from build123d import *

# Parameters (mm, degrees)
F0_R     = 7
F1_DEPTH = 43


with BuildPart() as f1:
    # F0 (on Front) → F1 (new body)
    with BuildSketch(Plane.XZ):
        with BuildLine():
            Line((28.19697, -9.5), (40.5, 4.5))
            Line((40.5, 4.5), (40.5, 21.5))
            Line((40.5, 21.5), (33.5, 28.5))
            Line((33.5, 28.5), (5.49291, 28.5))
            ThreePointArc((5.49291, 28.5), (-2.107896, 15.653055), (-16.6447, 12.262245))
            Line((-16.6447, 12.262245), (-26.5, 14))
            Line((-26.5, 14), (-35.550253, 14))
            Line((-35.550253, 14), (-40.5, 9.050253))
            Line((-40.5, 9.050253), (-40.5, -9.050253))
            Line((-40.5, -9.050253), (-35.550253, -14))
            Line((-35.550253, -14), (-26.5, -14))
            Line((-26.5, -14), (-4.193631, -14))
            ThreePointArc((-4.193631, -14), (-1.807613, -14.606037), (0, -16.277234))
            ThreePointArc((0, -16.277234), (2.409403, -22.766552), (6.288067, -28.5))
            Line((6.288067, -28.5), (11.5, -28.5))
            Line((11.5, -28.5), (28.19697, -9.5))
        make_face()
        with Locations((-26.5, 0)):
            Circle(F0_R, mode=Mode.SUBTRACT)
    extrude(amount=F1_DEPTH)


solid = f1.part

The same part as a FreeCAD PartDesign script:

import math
import FreeCAD as App
import Part
import Sketcher

V = App.Vector

doc = App.newDocument("Part")
body = doc.addObject("PartDesign::Body", "Body")

# Sketch on XZ plane
sketch1 = body.newObject("Sketcher::SketchObject", "Sketch")
sketch1.AttachmentSupport = (doc.getObject("XZ_Plane"), [""])
sketch1.MapMode = "FlatFace"
sketch1.addGeometry(Part.LineSegment(V(28.19697, -9.5, 0), V(40.5, 4.5, 0)), False)
sketch1.addGeometry(Part.LineSegment(V(40.5, 4.5, 0), V(40.5, 21.5, 0)), False)
sketch1.addGeometry(Part.LineSegment(V(40.5, 21.5, 0), V(33.5, 28.5, 0)), False)
sketch1.addGeometry(Part.LineSegment(V(33.5, 28.5, 0), V(5.49291, 28.5, 0)), False)
sketch1.addGeometry(Part.ArcOfCircle(Part.Circle(V(-13.345384, 30.973591, 0), V(0, 0, 1), 18.999999), math.radians(-100.000002), math.radians(-7.480516)), False)
sketch1.addGeometry(Part.LineSegment(V(-16.6447, 12.262245, 0), V(-26.5, 14, 0)), False)
sketch1.addGeometry(Part.LineSegment(V(-26.5, 14, 0), V(-35.550253, 14, 0)), False)
sketch1.addGeometry(Part.LineSegment(V(-35.550253, 14, 0), V(-40.5, 9.050253, 0)), False)
sketch1.addGeometry(Part.LineSegment(V(-40.5, 9.050253, 0), V(-40.5, -9.050253, 0)), False)
sketch1.addGeometry(Part.LineSegment(V(-40.5, -9.050253, 0), V(-35.550253, -14, 0)), False)
sketch1.addGeometry(Part.LineSegment(V(-35.550253, -14, 0), V(-4.193631, -14, 0)), False)
sketch1.addGeometry(Part.ArcOfCircle(Part.Circle(V(-4.193633, -19.000003, 0), V(0, 0, 1), 5.000003), math.radians(32.994158), math.radians(89.999972)), False)
sketch1.addGeometry(Part.ArcOfCircle(Part.Circle(V(28.196976, -9.499998, 0), V(0, 0, 1), 29.000007), math.radians(-166.485128), math.radians(-139.06728)), False)
sketch1.addGeometry(Part.LineSegment(V(6.288067, -28.5, 0), V(11.5, -28.5, 0)), False)
sketch1.addGeometry(Part.LineSegment(V(11.5, -28.5, 0), V(28.19697, -9.5, 0)), False)
sketch1.addGeometry(Part.Circle(V(-26.5, 0, 0), V(0, 0, 1), 7), False)
sketch1.addConstraint(Sketcher.Constraint("Coincident", 0, 2, 1, 1))
sketch1.addConstraint(Sketcher.Constraint("Coincident", 1, 2, 2, 1))
sketch1.addConstraint(Sketcher.Constraint("Coincident", 2, 2, 3, 1))
sketch1.addConstraint(Sketcher.Constraint("Coincident", 3, 2, 4, 2))
sketch1.addConstraint(Sketcher.Constraint("Coincident", 4, 1, 5, 1))
sketch1.addConstraint(Sketcher.Constraint("Coincident", 5, 2, 6, 1))
sketch1.addConstraint(Sketcher.Constraint("Coincident", 6, 2, 7, 1))
sketch1.addConstraint(Sketcher.Constraint("Coincident", 7, 2, 8, 1))
sketch1.addConstraint(Sketcher.Constraint("Coincident", 8, 2, 9, 1))
sketch1.addConstraint(Sketcher.Constraint("Coincident", 9, 2, 10, 1))
sketch1.addConstraint(Sketcher.Constraint("Coincident", 10, 2, 11, 2))
sketch1.addConstraint(Sketcher.Constraint("Coincident", 11, 1, 12, 1))
sketch1.addConstraint(Sketcher.Constraint("Coincident", 12, 2, 13, 1))
sketch1.addConstraint(Sketcher.Constraint("Coincident", 13, 2, 14, 1))
sketch1.addConstraint(Sketcher.Constraint("Coincident", 14, 2, 0, 1))
sketch1.addConstraint(Sketcher.Constraint("Vertical", 1))
sketch1.addConstraint(Sketcher.Constraint("Horizontal", 3))
sketch1.addConstraint(Sketcher.Constraint("Horizontal", 6))
sketch1.addConstraint(Sketcher.Constraint("Vertical", 8))
sketch1.addConstraint(Sketcher.Constraint("Horizontal", 10))
sketch1.addConstraint(Sketcher.Constraint("Horizontal", 13))
sketch1.addConstraint(Sketcher.Constraint("Coincident", 14, 2, 12, 3))
sketch1.addConstraint(Sketcher.Constraint("PointOnObject", 15, 3, -1))
sketch1.addConstraint(Sketcher.Constraint("PointOnObject", 11, 1, -2))
sketch1.addConstraint(Sketcher.Constraint("Diameter", 15, 14.0))
sketch1.addConstraint(Sketcher.Constraint("Radius", 4, 18.999999))
sketch1.addConstraint(Sketcher.Constraint("DistanceY", 1, 1, 1, 2, 17.0))
sketch1.addConstraint(Sketcher.Constraint("Distance", 7, 6.999999))
sketch1.addConstraint(Sketcher.Constraint("Distance", 9, 6.999999))
sketch1.addConstraint(Sketcher.Constraint("DistanceY", -1, 1, 5, 2, 14.0))
sketch1.addConstraint(Sketcher.Constraint("DistanceY", 9, 2, -1, 1, 14.0))
sketch1.addConstraint(Sketcher.Constraint("DistanceX", 15, 3, 0, 2, 67.0))
sketch1.addConstraint(Sketcher.Constraint("DistanceX", 2, 2, 1, 2, 7.0))
sketch1.addConstraint(Sketcher.Constraint("DistanceY", 1, 2, 2, 2, 7.0))
sketch1.addConstraint(Sketcher.Constraint("DistanceX", 7, 2, 5, 2, 14.0))
sketch1.addConstraint(Sketcher.Constraint("DistanceX", 7, 2, 15, 3, 14.0))
sketch1.addConstraint(Sketcher.Constraint("DistanceY", 14, 2, 0, 2, 14.0))
sketch1.addConstraint(Sketcher.Constraint("DistanceY", 13, 2, 14, 2, 19.0))
sketch1.addConstraint(Sketcher.Constraint("DistanceX", 15, 3, -1, 1, 26.5))
sketch1.addConstraint(Sketcher.Constraint("DistanceY", -1, 1, 0, 2, 4.5))
sketch1.addConstraint(Sketcher.Constraint("DistanceX", -1, 1, 13, 2, 11.5))
sketch1.addConstraint(Sketcher.Constraint("Radius", 11, 5.000003))
sketch1.addConstraint(Sketcher.Constraint("Radius", 12, 29.000007))
sketch1.addConstraint(Sketcher.Constraint("DistanceX", 3, 2, 3, 1, 28.00709))
sketch1.addConstraint(Sketcher.Constraint("DistanceX", 10, 1, 10, 2, 31.356622))
sketch1.addConstraint(Sketcher.Constraint("DistanceX", 4, 1, -1, 1, 16.6447))
sketch1.addConstraint(Sketcher.Constraint("DistanceX", 11, 3, 12, 2, 10.4817))
sketch1.addConstraint(Sketcher.Constraint("DistanceX", 6, 2, 6, 1, 9.050253))
sketch1.addConstraint(Sketcher.Constraint("DistanceY", 8, 2, 8, 1, 18.100506))
sketch1.addConstraint(Sketcher.Constraint("DistanceY", -1, 1, 4, 3, 30.973591))
pad1 = body.newObject("PartDesign::Pad", "Pad")
pad1.Profile = sketch1
pad1.Length = 43

doc.recompute()
